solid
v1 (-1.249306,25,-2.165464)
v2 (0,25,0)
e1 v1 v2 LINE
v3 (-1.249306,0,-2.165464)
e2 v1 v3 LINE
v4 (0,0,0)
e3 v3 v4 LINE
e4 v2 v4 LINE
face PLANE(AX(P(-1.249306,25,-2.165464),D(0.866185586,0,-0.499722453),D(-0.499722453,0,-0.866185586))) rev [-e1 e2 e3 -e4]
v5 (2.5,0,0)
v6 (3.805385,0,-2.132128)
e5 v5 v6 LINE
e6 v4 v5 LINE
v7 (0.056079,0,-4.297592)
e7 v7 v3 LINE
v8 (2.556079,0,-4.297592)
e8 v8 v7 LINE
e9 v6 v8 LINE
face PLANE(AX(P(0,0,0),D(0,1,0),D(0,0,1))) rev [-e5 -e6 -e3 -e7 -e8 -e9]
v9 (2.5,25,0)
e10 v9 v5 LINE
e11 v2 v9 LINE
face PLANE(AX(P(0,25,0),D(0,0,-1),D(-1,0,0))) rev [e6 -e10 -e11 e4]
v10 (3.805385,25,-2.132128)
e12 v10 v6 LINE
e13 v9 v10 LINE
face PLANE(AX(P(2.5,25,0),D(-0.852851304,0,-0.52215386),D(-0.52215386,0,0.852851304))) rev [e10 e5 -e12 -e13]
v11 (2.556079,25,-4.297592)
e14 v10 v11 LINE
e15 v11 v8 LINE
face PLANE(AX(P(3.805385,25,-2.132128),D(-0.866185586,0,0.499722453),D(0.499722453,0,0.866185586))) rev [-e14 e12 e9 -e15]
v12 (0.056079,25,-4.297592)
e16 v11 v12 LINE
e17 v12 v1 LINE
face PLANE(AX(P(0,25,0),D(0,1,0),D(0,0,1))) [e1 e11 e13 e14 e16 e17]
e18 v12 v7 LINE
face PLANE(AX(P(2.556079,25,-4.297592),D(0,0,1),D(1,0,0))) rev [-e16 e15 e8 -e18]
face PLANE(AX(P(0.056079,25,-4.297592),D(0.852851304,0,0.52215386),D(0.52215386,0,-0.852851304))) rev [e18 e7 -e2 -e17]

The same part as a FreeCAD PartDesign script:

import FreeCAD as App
import Part
import Sketcher

V = App.Vector
Q = App.Units.Quantity


def add_polygon(sketch, points):
    """Adds a closed chain of lines whose ends are joined by coincident constraints."""
    first, n = sketch.GeometryCount, len(points)
    for a, b in zip(points, points[1:] + points[:1]):
        sketch.addGeometry(Part.LineSegment(App.Vector(*a, 0), App.Vector(*b, 0)), False)
    for i in range(n):
        sketch.addConstraint(Sketcher.Constraint("Coincident", first + i, 2, first + (i + 1) % n, 1))

doc = App.newDocument("Part")
body = doc.addObject("PartDesign::Body", "Body")

sketch1 = body.newObject("Sketcher::SketchObject", "Sketch")
sketch1.AttachmentSupport = (doc.getObject("XZ_Plane"), [""])
sketch1.MapMode = "FlatFace"
add_polygon(sketch1, [(0, 0), (2.5, 0), (3.805385, -2.132128), (2.556079, -4.297592), (0.056079, -4.297592), (-1.249306, -2.165464)])
sketch1.addConstraint([
    Sketcher.Constraint("Horizontal", 0),
    Sketcher.Constraint("Horizontal", 3),
    Sketcher.Constraint("Coincident", 5, 2, -1, 1),
    Sketcher.Constraint("Parallel", 1, 4),
    Sketcher.Constraint("Parallel", 2, 5),
    Sketcher.Constraint("Equal", 0, 3),
    Sketcher.Constraint("Equal", 1, 2),
    Sketcher.Constraint("DistanceX", 0, 1, 0, 2, Q("2.5 mm")),
    Sketcher.Constraint("Distance", 1, Q("2.5 mm")),
    Sketcher.Constraint("DistanceY", 1, 2, -1, 1, Q("2.132128 mm")),
    Sketcher.Constraint("DistanceX", -1, 1, 2, 2, Q("2.556079 mm")),
])
pad1 = body.newObject("PartDesign::Pad", "Pad")
pad1.Profile = sketch1
pad1.Length = 25
pad1.Reversed = True

doc.recompute()
